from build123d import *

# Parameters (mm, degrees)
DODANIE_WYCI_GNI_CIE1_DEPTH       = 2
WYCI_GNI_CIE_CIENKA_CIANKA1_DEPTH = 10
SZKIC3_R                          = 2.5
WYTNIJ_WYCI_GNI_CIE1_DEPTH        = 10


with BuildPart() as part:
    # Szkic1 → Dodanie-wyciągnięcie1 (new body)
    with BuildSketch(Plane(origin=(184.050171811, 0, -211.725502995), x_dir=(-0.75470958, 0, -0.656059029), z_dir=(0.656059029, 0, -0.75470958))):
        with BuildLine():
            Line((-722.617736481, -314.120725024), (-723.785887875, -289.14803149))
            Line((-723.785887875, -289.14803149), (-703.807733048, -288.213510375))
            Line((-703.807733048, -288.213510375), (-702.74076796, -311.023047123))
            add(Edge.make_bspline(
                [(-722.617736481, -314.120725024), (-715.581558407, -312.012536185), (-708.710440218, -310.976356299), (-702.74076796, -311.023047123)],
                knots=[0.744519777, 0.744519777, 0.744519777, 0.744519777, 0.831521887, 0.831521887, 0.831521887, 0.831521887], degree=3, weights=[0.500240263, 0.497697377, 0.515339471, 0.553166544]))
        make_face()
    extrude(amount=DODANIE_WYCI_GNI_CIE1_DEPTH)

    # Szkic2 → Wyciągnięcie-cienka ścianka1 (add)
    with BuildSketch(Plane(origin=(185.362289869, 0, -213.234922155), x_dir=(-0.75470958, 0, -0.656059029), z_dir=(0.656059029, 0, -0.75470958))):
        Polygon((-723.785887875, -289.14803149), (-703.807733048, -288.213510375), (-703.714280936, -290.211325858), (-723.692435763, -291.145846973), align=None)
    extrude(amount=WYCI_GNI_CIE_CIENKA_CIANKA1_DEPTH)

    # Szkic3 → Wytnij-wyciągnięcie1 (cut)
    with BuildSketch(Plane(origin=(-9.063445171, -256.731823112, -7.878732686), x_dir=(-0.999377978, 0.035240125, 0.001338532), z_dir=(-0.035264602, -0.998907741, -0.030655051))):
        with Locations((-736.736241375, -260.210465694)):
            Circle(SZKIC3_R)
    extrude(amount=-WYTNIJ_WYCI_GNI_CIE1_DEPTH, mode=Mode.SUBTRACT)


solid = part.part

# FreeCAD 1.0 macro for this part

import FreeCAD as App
import Part
import Sketcher

V = App.Vector


def add_polygon(sketch, points):
    """Adds a closed chain of lines whose ends are joined by coincident constraints."""
    first, n = sketch.GeometryCount, len(points)
    for a, b in zip(points, points[1:] + points[:1]):
        sketch.addGeometry(Part.LineSegment(App.Vector(*a, 0), App.Vector(*b, 0)), False)
    for i in range(n):
        sketch.addConstraint(Sketcher.Constraint("Coincident", first + i, 2, first + (i + 1) % n, 1))

doc = App.newDocument("Part")
body = doc.addObject("PartDesign::Body", "Body")

sketch1 = body.newObject("Sketcher::SketchObject", "Sketch")
sketch1.Placement = App.Placement(V(184.050172, 0, -211.725503), App.Rotation(V(-0.75470958, 0, -0.656059029), V(0, 1, 0), V(0.656059029, 0, -0.75470958), "ZXY"))
sketch1.addGeometry([
    Part.LineSegment(V(-723.785888, -289.148031, 0), V(-722.617736, -314.120725, 0)),
    Part.BSplineCurve([V(-722.617736, -314.120725, 0), V(-715.581558, -312.012536, 0), V(-708.71044, -310.976356, 0), V(-702.740768, -311.023047, 0)], [4, 4], [0.744519777, 0.831521887], False, 3, [0.500240263, 0.497697377, 0.515339471, 0.553166544], False),
    Part.LineSegment(V(-702.740768, -311.023047, 0), V(-703.807733, -288.21351, 0)),
    Part.LineSegment(V(-703.807733, -288.21351, 0), V(-723.785888, -289.148031, 0)),
], False)
sketch1.addConstraint([
    Sketcher.Constraint("Block", 1),
    Sketcher.Constraint("Coincident", 0, 2, 1, 1),
    Sketcher.Constraint("Coincident", 1, 2, 2, 1),
    Sketcher.Constraint("Coincident", 2, 2, 3, 1),
    Sketcher.Constraint("Coincident", 3, 2, 0, 1),
    Sketcher.Constraint("Distance", 0, 25.0),
    Sketcher.Constraint("Distance", 3, 20.0),
    Sketcher.Constraint("DistanceY", 2, 2, -1, 1, 288.21351),
    Sketcher.Constraint("DistanceY", 3, 2, -1, 1, 289.148031),
])
pad1 = body.newObject("PartDesign::Pad", "Pad")
pad1.Profile = sketch1
pad1.Length = 2

sketch2 = body.newObject("Sketcher::SketchObject", "Sketch001")
sketch2.Placement = App.Placement(V(185.36229, 0, -213.234922), App.Rotation(V(-0.75470958, 0, -0.656059029), V(0, 1, 0), V(0.656059029, 0, -0.75470958), "ZXY"))
add_polygon(sketch2, [(-703.8, -288.2), (-723.8, -289.1), (-723.7, -291.1), (-703.7, -290.2)])
sketch2.addConstraint([
    Sketcher.Constraint("Perpendicular", 0, 1),
    Sketcher.Constraint("Perpendicular", 1, 2),
    Sketcher.Constraint("Perpendicular", 2, 3),
    Sketcher.Constraint("Distance", 0, 20.0),
    Sketcher.Constraint("Distance", 1, 2.0),
    Sketcher.Constraint("DistanceY", 0, 2, -1, 1, 289.148031),
    Sketcher.Constraint("DistanceX", 2, 2, -1, 1, 703.714281),
    Sketcher.Constraint("DistanceY", 3, 2, -1, 1, 288.21351),
])
pad2 = body.newObject("PartDesign::Pad", "Pad001")
pad2.Profile = sketch2
pad2.Length = 10

sketch3 = body.newObject("Sketcher::SketchObject", "Sketch002")
sketch3.Placement = App.Placement(V(-9.063445, -256.731823, -7.878733), App.Rotation(V(-0.999377977, 0.035240125, 0.001338532), V(-0.000256782, 0.030683186, -0.999529126), V(-0.035264602, -0.998907741, -0.030655051), "ZXY"))
sketch3.addGeometry(Part.Circle(V(-736.7, -260.2, 0), V(0, 0, 1), 2.5), False)
sketch3.addConstraint([
    Sketcher.Constraint("Diameter", 0, 5.0),
    Sketcher.Constraint("DistanceX", 0, 3, -1, 1, 736.736241),
    Sketcher.Constraint("DistanceY", 0, 3, -1, 1, 260.210465),
])
pocket1 = body.newObject("PartDesign::Pocket", "Pocket")
pocket1.Profile = sketch3
pocket1.Length = 10

doc.recompute()
